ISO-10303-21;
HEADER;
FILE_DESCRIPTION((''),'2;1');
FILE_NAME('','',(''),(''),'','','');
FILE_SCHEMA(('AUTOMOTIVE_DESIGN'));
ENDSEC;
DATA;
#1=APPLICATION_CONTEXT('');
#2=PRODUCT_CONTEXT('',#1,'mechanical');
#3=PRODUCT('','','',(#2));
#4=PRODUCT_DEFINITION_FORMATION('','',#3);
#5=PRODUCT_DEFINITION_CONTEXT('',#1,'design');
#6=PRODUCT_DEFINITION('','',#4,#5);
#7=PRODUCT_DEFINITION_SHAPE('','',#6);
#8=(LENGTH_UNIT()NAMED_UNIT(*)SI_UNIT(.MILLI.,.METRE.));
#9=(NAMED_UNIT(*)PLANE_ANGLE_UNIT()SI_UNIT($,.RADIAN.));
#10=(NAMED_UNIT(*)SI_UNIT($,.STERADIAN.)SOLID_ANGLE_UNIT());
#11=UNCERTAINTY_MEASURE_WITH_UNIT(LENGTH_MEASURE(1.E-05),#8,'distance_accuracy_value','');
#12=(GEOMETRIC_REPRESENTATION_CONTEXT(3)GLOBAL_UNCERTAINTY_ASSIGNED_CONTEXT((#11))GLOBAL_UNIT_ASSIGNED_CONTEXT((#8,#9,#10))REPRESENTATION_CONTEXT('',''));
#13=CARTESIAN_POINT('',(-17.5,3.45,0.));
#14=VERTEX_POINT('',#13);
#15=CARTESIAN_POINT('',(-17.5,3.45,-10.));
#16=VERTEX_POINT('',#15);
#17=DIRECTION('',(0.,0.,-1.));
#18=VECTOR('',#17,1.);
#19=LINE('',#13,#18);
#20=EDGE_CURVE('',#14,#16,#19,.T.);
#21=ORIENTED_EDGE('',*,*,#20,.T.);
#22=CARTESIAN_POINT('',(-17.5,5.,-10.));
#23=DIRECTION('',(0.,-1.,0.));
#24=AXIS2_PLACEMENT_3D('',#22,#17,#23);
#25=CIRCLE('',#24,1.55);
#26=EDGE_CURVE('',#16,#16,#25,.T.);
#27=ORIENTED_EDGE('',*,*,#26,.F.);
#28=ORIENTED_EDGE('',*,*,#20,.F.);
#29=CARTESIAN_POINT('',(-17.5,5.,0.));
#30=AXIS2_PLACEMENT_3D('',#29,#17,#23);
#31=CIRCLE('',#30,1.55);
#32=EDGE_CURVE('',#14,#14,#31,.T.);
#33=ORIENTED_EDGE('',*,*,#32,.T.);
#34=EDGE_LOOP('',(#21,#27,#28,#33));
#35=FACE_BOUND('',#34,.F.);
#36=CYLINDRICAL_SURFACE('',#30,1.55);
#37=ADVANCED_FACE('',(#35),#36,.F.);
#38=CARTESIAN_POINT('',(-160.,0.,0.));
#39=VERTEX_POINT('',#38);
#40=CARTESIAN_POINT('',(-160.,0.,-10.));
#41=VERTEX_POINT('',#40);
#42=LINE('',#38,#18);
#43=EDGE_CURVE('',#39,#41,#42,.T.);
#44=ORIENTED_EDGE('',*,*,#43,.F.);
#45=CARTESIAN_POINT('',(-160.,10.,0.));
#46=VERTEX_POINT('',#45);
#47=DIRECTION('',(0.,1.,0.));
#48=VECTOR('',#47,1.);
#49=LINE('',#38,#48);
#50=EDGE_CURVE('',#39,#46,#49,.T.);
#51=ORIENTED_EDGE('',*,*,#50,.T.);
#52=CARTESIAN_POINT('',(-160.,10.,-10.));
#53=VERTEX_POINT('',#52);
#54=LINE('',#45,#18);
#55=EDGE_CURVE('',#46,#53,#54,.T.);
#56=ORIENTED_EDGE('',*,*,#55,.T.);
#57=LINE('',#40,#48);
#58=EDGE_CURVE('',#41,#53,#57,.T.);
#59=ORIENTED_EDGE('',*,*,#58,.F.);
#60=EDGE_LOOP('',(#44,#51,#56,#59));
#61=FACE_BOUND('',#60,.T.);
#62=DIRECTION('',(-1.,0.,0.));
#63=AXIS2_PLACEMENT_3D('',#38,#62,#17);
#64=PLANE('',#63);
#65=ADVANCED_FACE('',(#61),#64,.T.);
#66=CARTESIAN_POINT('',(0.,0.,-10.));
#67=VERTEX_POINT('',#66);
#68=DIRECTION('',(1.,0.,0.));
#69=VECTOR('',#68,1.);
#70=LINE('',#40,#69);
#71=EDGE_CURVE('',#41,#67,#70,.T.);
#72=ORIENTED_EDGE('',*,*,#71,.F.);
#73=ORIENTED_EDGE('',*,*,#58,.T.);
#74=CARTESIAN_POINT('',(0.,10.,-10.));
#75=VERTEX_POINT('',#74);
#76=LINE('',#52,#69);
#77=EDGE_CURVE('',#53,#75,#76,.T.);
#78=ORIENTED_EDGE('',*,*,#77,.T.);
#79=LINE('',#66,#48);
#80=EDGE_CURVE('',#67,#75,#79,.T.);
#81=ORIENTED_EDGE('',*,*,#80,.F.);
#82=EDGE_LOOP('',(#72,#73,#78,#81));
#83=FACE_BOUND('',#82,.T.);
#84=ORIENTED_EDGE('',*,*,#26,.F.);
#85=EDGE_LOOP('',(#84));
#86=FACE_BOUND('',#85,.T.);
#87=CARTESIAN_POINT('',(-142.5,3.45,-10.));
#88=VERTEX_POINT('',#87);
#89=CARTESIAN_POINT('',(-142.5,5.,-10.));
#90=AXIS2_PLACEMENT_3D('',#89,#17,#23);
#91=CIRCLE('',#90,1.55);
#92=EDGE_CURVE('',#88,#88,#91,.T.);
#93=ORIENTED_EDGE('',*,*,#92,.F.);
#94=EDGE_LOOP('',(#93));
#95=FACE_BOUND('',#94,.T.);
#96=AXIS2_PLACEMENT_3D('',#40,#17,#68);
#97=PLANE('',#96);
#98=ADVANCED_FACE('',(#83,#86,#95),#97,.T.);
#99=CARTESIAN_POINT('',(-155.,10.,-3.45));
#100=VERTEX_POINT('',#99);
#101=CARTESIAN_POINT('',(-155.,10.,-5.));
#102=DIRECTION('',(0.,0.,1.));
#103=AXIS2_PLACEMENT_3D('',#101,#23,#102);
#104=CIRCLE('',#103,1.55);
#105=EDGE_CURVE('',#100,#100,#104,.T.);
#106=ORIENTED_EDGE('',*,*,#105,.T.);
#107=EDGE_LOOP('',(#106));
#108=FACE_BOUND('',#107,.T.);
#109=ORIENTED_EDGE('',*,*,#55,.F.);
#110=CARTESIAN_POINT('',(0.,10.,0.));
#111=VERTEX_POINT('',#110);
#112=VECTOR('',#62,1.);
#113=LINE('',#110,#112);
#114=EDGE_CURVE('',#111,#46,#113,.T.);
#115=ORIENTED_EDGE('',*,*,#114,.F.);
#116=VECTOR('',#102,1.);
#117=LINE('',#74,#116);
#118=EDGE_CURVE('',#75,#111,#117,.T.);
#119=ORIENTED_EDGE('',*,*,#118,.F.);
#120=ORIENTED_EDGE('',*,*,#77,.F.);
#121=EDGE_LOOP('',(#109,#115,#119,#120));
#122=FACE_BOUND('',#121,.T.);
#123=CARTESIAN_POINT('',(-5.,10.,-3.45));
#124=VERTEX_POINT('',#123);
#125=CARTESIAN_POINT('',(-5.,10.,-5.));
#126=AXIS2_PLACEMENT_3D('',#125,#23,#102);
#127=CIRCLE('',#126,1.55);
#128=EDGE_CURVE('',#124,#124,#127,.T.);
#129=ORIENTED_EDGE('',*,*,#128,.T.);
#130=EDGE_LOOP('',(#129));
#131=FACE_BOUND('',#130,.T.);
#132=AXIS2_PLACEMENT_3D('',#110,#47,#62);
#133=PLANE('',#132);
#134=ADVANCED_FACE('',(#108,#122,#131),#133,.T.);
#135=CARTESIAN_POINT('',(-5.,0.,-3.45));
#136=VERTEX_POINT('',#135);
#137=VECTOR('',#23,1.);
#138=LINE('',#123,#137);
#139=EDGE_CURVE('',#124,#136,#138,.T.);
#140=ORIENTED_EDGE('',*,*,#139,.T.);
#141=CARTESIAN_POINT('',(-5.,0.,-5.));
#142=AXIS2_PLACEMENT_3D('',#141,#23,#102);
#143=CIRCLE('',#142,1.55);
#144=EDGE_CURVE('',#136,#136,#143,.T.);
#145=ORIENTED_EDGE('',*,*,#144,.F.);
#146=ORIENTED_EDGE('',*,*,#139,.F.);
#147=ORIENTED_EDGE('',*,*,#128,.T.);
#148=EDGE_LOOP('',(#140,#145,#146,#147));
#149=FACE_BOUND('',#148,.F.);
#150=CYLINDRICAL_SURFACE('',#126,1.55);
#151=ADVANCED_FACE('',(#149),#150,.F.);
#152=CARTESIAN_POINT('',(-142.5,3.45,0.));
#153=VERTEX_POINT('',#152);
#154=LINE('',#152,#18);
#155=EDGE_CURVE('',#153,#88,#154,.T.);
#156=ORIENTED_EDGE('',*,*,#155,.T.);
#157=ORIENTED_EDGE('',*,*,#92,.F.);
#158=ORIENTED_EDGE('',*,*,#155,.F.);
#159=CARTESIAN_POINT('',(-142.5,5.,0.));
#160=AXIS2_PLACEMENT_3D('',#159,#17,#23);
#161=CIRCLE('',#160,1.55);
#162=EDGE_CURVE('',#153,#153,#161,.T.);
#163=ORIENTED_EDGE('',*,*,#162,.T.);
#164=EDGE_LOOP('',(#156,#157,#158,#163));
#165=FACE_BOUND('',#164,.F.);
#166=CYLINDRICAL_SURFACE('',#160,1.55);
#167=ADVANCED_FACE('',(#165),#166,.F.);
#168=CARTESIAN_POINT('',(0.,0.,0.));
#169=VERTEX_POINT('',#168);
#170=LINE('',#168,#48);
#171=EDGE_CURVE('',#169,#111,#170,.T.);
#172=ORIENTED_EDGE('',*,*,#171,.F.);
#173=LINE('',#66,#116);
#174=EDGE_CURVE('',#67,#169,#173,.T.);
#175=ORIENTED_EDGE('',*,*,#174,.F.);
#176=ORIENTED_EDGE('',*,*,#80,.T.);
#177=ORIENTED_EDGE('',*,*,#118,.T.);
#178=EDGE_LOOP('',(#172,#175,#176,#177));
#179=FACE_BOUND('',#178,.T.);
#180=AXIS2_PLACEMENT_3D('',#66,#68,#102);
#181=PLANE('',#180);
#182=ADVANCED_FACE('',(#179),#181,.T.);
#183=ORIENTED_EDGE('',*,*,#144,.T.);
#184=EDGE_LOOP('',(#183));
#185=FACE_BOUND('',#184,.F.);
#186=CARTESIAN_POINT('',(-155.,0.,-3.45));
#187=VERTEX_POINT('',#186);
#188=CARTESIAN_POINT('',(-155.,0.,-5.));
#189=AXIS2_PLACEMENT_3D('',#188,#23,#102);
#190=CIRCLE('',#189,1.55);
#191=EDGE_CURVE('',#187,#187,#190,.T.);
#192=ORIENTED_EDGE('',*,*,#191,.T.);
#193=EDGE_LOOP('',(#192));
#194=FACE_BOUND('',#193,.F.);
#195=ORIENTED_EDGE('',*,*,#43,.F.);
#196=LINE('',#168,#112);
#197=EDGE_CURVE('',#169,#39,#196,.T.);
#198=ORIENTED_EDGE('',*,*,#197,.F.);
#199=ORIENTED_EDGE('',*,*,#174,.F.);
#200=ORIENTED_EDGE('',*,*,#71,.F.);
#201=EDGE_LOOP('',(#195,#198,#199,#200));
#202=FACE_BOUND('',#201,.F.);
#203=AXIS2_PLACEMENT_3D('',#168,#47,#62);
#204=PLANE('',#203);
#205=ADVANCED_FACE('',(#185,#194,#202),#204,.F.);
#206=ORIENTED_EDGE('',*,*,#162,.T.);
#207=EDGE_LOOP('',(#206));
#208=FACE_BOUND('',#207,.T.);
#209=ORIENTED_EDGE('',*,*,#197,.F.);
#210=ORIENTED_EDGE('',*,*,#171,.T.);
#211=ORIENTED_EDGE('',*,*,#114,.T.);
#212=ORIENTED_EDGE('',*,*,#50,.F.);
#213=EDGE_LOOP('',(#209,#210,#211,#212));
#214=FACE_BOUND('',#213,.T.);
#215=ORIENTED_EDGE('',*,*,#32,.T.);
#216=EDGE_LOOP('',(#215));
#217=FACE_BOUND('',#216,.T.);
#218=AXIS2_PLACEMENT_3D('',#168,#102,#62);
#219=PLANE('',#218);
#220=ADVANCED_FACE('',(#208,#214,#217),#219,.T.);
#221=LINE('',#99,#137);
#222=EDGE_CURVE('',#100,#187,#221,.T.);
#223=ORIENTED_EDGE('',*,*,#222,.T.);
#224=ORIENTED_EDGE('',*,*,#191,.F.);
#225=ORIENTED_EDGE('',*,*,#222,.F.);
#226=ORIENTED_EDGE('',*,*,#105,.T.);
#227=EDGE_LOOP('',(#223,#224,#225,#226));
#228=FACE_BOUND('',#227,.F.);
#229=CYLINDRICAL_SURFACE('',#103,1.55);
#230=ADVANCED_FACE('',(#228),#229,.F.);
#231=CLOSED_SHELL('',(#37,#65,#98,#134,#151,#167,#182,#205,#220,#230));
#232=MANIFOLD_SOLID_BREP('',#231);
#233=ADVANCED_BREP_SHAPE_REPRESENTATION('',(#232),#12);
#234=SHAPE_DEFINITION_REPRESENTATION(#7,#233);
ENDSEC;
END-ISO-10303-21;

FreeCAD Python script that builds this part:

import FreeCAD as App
import Part
import Sketcher

V = App.Vector


def add_polygon(sketch, points):
    """Adds a closed chain of lines whose ends are joined by coincident constraints."""
    first, n = sketch.GeometryCount, len(points)
    for a, b in zip(points, points[1:] + points[:1]):
        sketch.addGeometry(Part.LineSegment(App.Vector(*a, 0), App.Vector(*b, 0)), False)
    for i in range(n):
        sketch.addConstraint(Sketcher.Constraint("Coincident", first + i, 2, first + (i + 1) % n, 1))

doc = App.newDocument("Part")
body = doc.addObject("PartDesign::Body", "Body")

# Sketch on XZ plane
sketch1 = body.newObject("Sketcher::SketchObject", "Sketch")
sketch1.AttachmentSupport = (doc.getObject("XZ_Plane"), [""])
sketch1.MapMode = "FlatFace"
add_polygon(sketch1, [(-160, 0), (0, 0), (0, -10), (-160, -10)])  # lines 0-3
sketch1.addConstraint(Sketcher.Constraint("Horizontal", 0))
sketch1.addConstraint(Sketcher.Constraint("Vertical", 1))
sketch1.addConstraint(Sketcher.Constraint("Horizontal", 2))
sketch1.addConstraint(Sketcher.Constraint("Vertical", 3))
sketch1.addConstraint(Sketcher.Constraint("Coincident", 0, 2, -1, 1))
sketch1.addConstraint(Sketcher.Constraint("DistanceX", 0, 1, 0, 2, 160.0))
sketch1.addConstraint(Sketcher.Constraint("DistanceY", 1, 2, 1, 1, 10.0))
pad1 = body.newObject("PartDesign::Pad", "Pad")
pad1.Profile = sketch1
pad1.Length = 10
pad1.Reversed = True

# Sketch on XZ plane
sketch2 = body.newObject("Sketcher::SketchObject", "Sketch001")
sketch2.AttachmentSupport = (doc.getObject("XZ_Plane"), [""])
sketch2.MapMode = "FlatFace"
sketch2.AttachmentOffset = App.Placement(V(0, 0, -10), App.Rotation())
sketch2.addGeometry(Part.Circle(V(-5, -5, 0), V(0, 0, 1), 1.6), False)
sketch2.addGeometry(Part.Circle(V(-155, -5, 0), V(0, 0, 1), 1.6), False)
sketch2.addConstraint(Sketcher.Constraint("Equal", 0, 1))
sketch2.addConstraint(Sketcher.Constraint("Horizontal", 0, 3, 1, 3))
sketch2.addConstraint(Sketcher.Constraint("Diameter", 0, 3.1))
sketch2.addConstraint(Sketcher.Constraint("DistanceX", 0, 3, -1, 1, 5.0))
sketch2.addConstraint(Sketcher.Constraint("DistanceY", 0, 3, -1, 1, 5.0))
sketch2.addConstraint(Sketcher.Constraint("DistanceX", 1, 3, -1, 1, 155.0))
doc.recompute()
hole = body.newObject("PartDesign::Hole", "Hole")
hole.Profile = sketch2
hole.ThreadType = "None"
hole.Diameter = 3.1
hole.DepthType = "ThroughAll"
hole.Reversed = True

# Sketch on XY plane
sketch3 = body.newObject("Sketcher::SketchObject", "Sketch002")
sketch3.AttachmentSupport = (doc.getObject("XY_Plane"), [""])
sketch3.MapMode = "FlatFace"
sketch3.addGeometry(Part.Circle(V(-142.5, 5, 0), V(0, 0, 1), 1.6), False)
sketch3.addGeometry(Part.Circle(V(-17.5, 5, 0), V(0, 0, 1), 1.6), False)
sketch3.addConstraint(Sketcher.Constraint("Equal", 0, 1))
sketch3.addConstraint(Sketcher.Constraint("Horizontal", 0, 3, 1, 3))
sketch3.addConstraint(Sketcher.Constraint("Diameter", 0, 3.1))
sketch3.addConstraint(Sketcher.Constraint("DistanceY", -1, 1, 0, 3, 5.0))
sketch3.addConstraint(Sketcher.Constraint("DistanceX", 0, 3, 1, 3, 125.0))
sketch3.addConstraint(Sketcher.Constraint("DistanceX", 0, 3, -1, 1, 142.5))
doc.recompute()
hole2 = body.newObject("PartDesign::Hole", "Hole001")
hole2.Profile = sketch3
hole2.ThreadType = "None"
hole2.Diameter = 3.1
hole2.DepthType = "ThroughAll"

doc.recompute()
